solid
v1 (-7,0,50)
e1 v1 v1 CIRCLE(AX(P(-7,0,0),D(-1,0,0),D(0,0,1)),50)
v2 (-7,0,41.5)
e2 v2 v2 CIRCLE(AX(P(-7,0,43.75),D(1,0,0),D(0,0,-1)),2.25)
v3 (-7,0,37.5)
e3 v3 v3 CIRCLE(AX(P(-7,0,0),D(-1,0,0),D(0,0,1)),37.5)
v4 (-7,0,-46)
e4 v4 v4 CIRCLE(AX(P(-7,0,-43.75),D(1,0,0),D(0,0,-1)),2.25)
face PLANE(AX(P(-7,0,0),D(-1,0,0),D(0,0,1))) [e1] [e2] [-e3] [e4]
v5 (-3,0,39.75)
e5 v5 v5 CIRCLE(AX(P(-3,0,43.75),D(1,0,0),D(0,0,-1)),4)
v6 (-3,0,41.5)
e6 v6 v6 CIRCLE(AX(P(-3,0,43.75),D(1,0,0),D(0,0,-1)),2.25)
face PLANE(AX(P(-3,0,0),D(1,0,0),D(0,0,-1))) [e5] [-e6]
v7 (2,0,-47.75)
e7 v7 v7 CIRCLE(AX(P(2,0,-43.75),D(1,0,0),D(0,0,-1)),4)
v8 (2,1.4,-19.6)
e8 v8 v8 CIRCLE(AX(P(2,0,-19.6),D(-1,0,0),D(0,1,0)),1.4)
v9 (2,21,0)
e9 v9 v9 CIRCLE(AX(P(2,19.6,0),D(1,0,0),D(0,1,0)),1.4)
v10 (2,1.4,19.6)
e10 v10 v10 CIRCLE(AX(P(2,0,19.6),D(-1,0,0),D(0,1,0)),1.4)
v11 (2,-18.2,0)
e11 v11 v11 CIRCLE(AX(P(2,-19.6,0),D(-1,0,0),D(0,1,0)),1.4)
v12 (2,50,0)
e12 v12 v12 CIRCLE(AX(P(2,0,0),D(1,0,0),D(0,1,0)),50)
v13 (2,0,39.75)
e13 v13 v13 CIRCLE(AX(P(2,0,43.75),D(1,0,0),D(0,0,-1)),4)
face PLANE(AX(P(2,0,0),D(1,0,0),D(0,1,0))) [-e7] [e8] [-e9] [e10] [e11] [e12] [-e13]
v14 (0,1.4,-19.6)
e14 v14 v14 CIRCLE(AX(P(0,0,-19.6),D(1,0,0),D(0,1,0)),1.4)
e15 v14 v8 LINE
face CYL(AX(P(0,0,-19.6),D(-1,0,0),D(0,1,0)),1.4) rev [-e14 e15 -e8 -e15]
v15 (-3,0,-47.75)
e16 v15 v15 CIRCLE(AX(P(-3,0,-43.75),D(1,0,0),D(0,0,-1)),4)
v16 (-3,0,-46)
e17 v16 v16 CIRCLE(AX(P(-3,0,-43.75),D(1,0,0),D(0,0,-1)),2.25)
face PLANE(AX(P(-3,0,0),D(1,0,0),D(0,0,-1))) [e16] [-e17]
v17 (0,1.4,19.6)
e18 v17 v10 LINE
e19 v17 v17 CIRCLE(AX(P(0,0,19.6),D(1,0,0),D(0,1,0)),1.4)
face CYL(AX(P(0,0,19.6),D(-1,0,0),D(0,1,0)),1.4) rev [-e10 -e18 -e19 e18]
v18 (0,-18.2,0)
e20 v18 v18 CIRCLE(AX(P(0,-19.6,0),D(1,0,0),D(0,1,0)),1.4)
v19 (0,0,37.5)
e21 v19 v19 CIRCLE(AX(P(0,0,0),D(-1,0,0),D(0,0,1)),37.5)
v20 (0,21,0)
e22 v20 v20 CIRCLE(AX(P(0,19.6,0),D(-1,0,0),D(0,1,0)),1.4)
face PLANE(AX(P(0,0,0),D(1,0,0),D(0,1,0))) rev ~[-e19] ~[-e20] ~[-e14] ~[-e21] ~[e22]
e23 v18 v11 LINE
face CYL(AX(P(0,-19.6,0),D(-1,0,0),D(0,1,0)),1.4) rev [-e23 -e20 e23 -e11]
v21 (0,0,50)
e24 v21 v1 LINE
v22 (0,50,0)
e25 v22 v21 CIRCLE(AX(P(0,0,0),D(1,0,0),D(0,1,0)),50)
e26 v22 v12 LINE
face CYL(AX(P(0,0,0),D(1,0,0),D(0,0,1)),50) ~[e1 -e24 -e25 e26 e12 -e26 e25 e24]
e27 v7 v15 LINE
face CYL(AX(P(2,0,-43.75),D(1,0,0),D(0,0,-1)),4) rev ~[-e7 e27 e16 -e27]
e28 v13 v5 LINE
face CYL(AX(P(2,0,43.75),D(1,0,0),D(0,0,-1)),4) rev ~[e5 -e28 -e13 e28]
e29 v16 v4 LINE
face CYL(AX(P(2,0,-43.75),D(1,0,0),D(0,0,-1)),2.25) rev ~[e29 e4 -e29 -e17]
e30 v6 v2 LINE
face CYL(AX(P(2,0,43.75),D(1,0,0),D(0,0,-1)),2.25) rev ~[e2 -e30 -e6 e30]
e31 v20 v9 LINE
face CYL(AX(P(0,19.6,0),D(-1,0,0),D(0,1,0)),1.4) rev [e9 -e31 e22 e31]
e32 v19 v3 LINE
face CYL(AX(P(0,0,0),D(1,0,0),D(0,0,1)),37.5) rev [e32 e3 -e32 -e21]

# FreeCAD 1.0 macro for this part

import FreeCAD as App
import Part
import Sketcher

V = App.Vector

doc = App.newDocument("Part")
params = doc.addObject("Spreadsheet::Sheet", "Params")
for row, (alias, value) in enumerate([
    ("sketch1_diameter", "100 mm"),
    ("sketch1_diameter2", "2.8 mm"),
    ("pad1_length", "2 mm"),
    ("sketch2_diameter", "75 mm"),
    ("sketch2_diameter2", "100 mm"),
    ("pad2_length", "7 mm"),
    ("sketch3_diameter", "4.5 mm"),
    ("pocket1_length", "10 mm"),
    ("sketch4_diameter", "8 mm"),
    ("sketch4_diameter2", "4.5 mm"),
    ("pocket2_length", "5 mm"),
], start=1):
    params.set(f"A{row}", alias)
    params.set(f"B{row}", "=" + value)
    params.setAlias(f"B{row}", alias)

body = doc.addObject("PartDesign::Body", "Body")

# Sketch on YZ plane
sketch1 = body.newObject("Sketcher::SketchObject", "Sketch")
sketch1.AttachmentSupport = (doc.getObject("YZ_Plane"), [""])
sketch1.MapMode = "FlatFace"
sketch1.addGeometry(Part.Circle(V(0, 0, 0), V(0, 0, 1), 50), False)
sketch1.addGeometry(Part.Circle(V(19.6, 0, 0), V(0, 0, 1), 1.4), False)
sketch1.addGeometry(Part.Circle(V(0, -19.6, 0), V(0, 0, 1), 1.4), False)
sketch1.addGeometry(Part.Circle(V(-19.6, 0, 0), V(0, 0, 1), 1.4), False)
sketch1.addGeometry(Part.Circle(V(0, 19.6, 0), V(0, 0, 1), 1.4), False)
sketch1.addConstraint(Sketcher.Constraint("Coincident", 0, 3, -1, 1))
sketch1.addConstraint(Sketcher.Constraint("Equal", 1, 2))
sketch1.addConstraint(Sketcher.Constraint("Equal", 2, 3))
sketch1.addConstraint(Sketcher.Constraint("Equal", 3, 4))
sketch1.addConstraint(Sketcher.Constraint("Symmetric", 1, 3, 3, 3, -1, 1))
sketch1.addConstraint(Sketcher.Constraint("Symmetric", 2, 3, 4, 3, -1, 1))
sketch1.addConstraint(Sketcher.Constraint("PointOnObject", 1, 3, -1))
sketch1.addConstraint(Sketcher.Constraint("PointOnObject", 2, 3, -2))
sketch1.addConstraint(Sketcher.Constraint("Diameter", 0, 100.0))
sketch1.addConstraint(Sketcher.Constraint("Diameter", 1, 2.8))
sketch1.addConstraint(Sketcher.Constraint("DistanceX", 3, 3, 1, 3, 39.2))
sketch1.addConstraint(Sketcher.Constraint("DistanceY", 2, 3, 4, 3, 39.2))
sketch1.setExpression("Constraints[8]", "Params.sketch1_diameter")
sketch1.setExpression("Constraints[9]", "Params.sketch1_diameter2")
pad1 = body.newObject("PartDesign::Pad", "Pad")
pad1.Profile = sketch1
pad1.setExpression("Length", "Params.pad1_length")

# Sketch on YZ plane
sketch2 = body.newObject("Sketcher::SketchObject", "Sketch001")
sketch2.AttachmentSupport = (doc.getObject("YZ_Plane"), [""])
sketch2.MapMode = "FlatFace"
sketch2.addGeometry(Part.Circle(V(0, 0, 0), V(0, 0, 1), 50), False)
sketch2.addGeometry(Part.Circle(V(0, 0, 0), V(0, 0, 1), 38), False)
sketch2.addConstraint(Sketcher.Constraint("Coincident", 0, 3, -1, 1))
sketch2.addConstraint(Sketcher.Constraint("Coincident", 1, 3, -1, 1))
sketch2.addConstraint(Sketcher.Constraint("Diameter", 1, 75.0))
sketch2.addConstraint(Sketcher.Constraint("Diameter", 0, 100.0))
sketch2.setExpression("Constraints[2]", "Params.sketch2_diameter")
sketch2.setExpression("Constraints[3]", "Params.sketch2_diameter2")
pad2 = body.newObject("PartDesign::Pad", "Pad001")
pad2.Profile = sketch2
pad2.setExpression("Length", "Params.pad2_length")
pad2.Reversed = True

# Sketch on YZ plane
sketch3 = body.newObject("Sketcher::SketchObject", "Sketch002")
sketch3.AttachmentSupport = (doc.getObject("YZ_Plane"), [""])
sketch3.MapMode = "FlatFace"
sketch3.AttachmentOffset = App.Placement(V(0, 0, 2), App.Rotation())
sketch3.addGeometry(Part.Circle(V(0, -43.8, 0), V(0, 0, 1), 2.2), False)
sketch3.addGeometry(Part.Circle(V(0, 43.8, 0), V(0, 0, 1), 2.2), False)
sketch3.addConstraint(Sketcher.Constraint("Equal", 0, 1))
sketch3.addConstraint(Sketcher.Constraint("Symmetric", 0, 3, 1, 3, -1, 1))
sketch3.addConstraint(Sketcher.Constraint("PointOnObject", 0, 3, -2))
sketch3.addConstraint(Sketcher.Constraint("Diameter", 0, 4.5))
sketch3.addConstraint(Sketcher.Constraint("DistanceY", 0, 3, 1, 3, 87.5))
sketch3.setExpression("Constraints[3]", "Params.sketch3_diameter")
pocket1 = body.newObject("PartDesign::Pocket", "Pocket")
pocket1.Profile = sketch3
pocket1.setExpression("Length", "Params.pocket1_length")

# Sketch on YZ plane
sketch4 = body.newObject("Sketcher::SketchObject", "Sketch003")
sketch4.AttachmentSupport = (doc.getObject("YZ_Plane"), [""])
sketch4.MapMode = "FlatFace"
sketch4.AttachmentOffset = App.Placement(V(0, 0, 2), App.Rotation())
sketch4.addGeometry(Part.Circle(V(0, 43.8, 0), V(0, 0, 1), 4), False)
sketch4.addGeometry(Part.Circle(V(0, 43.8, 0), V(0, 0, 1), 2.2), False)
sketch4.addGeometry(Part.Circle(V(0, -43.8, 0), V(0, 0, 1), 4), False)
sketch4.addGeometry(Part.Circle(V(0, -43.8, 0), V(0, 0, 1), 2.2), False)
sketch4.addConstraint(Sketcher.Constraint("Coincident", 1, 3, 0, 3))
sketch4.addConstraint(Sketcher.Constraint("Coincident", 3, 3, 2, 3))
sketch4.addConstraint(Sketcher.Constraint("Equal", 0, 2))
sketch4.addConstraint(Sketcher.Constraint("Equal", 1, 3))
sketch4.addConstraint(Sketcher.Constraint("Symmetric", 0, 3, 2, 3, -1, 1))
sketch4.addConstraint(Sketcher.Constraint("PointOnObject", 0, 3, -2))
sketch4.addConstraint(Sketcher.Constraint("Diameter", 0, 8.0))
sketch4.addConstraint(Sketcher.Constraint("Diameter", 1, 4.5))
sketch4.addConstraint(Sketcher.Constraint("DistanceY", 2, 3, 0, 3, 87.5))
sketch4.setExpression("Constraints[6]", "Params.sketch4_diameter")
sketch4.setExpression("Constraints[7]", "Params.sketch4_diameter2")
pocket2 = body.newObject("PartDesign::Pocket", "Pocket001")
pocket2.Profile = sketch4
pocket2.setExpression("Length", "Params.pocket2_length")

doc.recompute()
